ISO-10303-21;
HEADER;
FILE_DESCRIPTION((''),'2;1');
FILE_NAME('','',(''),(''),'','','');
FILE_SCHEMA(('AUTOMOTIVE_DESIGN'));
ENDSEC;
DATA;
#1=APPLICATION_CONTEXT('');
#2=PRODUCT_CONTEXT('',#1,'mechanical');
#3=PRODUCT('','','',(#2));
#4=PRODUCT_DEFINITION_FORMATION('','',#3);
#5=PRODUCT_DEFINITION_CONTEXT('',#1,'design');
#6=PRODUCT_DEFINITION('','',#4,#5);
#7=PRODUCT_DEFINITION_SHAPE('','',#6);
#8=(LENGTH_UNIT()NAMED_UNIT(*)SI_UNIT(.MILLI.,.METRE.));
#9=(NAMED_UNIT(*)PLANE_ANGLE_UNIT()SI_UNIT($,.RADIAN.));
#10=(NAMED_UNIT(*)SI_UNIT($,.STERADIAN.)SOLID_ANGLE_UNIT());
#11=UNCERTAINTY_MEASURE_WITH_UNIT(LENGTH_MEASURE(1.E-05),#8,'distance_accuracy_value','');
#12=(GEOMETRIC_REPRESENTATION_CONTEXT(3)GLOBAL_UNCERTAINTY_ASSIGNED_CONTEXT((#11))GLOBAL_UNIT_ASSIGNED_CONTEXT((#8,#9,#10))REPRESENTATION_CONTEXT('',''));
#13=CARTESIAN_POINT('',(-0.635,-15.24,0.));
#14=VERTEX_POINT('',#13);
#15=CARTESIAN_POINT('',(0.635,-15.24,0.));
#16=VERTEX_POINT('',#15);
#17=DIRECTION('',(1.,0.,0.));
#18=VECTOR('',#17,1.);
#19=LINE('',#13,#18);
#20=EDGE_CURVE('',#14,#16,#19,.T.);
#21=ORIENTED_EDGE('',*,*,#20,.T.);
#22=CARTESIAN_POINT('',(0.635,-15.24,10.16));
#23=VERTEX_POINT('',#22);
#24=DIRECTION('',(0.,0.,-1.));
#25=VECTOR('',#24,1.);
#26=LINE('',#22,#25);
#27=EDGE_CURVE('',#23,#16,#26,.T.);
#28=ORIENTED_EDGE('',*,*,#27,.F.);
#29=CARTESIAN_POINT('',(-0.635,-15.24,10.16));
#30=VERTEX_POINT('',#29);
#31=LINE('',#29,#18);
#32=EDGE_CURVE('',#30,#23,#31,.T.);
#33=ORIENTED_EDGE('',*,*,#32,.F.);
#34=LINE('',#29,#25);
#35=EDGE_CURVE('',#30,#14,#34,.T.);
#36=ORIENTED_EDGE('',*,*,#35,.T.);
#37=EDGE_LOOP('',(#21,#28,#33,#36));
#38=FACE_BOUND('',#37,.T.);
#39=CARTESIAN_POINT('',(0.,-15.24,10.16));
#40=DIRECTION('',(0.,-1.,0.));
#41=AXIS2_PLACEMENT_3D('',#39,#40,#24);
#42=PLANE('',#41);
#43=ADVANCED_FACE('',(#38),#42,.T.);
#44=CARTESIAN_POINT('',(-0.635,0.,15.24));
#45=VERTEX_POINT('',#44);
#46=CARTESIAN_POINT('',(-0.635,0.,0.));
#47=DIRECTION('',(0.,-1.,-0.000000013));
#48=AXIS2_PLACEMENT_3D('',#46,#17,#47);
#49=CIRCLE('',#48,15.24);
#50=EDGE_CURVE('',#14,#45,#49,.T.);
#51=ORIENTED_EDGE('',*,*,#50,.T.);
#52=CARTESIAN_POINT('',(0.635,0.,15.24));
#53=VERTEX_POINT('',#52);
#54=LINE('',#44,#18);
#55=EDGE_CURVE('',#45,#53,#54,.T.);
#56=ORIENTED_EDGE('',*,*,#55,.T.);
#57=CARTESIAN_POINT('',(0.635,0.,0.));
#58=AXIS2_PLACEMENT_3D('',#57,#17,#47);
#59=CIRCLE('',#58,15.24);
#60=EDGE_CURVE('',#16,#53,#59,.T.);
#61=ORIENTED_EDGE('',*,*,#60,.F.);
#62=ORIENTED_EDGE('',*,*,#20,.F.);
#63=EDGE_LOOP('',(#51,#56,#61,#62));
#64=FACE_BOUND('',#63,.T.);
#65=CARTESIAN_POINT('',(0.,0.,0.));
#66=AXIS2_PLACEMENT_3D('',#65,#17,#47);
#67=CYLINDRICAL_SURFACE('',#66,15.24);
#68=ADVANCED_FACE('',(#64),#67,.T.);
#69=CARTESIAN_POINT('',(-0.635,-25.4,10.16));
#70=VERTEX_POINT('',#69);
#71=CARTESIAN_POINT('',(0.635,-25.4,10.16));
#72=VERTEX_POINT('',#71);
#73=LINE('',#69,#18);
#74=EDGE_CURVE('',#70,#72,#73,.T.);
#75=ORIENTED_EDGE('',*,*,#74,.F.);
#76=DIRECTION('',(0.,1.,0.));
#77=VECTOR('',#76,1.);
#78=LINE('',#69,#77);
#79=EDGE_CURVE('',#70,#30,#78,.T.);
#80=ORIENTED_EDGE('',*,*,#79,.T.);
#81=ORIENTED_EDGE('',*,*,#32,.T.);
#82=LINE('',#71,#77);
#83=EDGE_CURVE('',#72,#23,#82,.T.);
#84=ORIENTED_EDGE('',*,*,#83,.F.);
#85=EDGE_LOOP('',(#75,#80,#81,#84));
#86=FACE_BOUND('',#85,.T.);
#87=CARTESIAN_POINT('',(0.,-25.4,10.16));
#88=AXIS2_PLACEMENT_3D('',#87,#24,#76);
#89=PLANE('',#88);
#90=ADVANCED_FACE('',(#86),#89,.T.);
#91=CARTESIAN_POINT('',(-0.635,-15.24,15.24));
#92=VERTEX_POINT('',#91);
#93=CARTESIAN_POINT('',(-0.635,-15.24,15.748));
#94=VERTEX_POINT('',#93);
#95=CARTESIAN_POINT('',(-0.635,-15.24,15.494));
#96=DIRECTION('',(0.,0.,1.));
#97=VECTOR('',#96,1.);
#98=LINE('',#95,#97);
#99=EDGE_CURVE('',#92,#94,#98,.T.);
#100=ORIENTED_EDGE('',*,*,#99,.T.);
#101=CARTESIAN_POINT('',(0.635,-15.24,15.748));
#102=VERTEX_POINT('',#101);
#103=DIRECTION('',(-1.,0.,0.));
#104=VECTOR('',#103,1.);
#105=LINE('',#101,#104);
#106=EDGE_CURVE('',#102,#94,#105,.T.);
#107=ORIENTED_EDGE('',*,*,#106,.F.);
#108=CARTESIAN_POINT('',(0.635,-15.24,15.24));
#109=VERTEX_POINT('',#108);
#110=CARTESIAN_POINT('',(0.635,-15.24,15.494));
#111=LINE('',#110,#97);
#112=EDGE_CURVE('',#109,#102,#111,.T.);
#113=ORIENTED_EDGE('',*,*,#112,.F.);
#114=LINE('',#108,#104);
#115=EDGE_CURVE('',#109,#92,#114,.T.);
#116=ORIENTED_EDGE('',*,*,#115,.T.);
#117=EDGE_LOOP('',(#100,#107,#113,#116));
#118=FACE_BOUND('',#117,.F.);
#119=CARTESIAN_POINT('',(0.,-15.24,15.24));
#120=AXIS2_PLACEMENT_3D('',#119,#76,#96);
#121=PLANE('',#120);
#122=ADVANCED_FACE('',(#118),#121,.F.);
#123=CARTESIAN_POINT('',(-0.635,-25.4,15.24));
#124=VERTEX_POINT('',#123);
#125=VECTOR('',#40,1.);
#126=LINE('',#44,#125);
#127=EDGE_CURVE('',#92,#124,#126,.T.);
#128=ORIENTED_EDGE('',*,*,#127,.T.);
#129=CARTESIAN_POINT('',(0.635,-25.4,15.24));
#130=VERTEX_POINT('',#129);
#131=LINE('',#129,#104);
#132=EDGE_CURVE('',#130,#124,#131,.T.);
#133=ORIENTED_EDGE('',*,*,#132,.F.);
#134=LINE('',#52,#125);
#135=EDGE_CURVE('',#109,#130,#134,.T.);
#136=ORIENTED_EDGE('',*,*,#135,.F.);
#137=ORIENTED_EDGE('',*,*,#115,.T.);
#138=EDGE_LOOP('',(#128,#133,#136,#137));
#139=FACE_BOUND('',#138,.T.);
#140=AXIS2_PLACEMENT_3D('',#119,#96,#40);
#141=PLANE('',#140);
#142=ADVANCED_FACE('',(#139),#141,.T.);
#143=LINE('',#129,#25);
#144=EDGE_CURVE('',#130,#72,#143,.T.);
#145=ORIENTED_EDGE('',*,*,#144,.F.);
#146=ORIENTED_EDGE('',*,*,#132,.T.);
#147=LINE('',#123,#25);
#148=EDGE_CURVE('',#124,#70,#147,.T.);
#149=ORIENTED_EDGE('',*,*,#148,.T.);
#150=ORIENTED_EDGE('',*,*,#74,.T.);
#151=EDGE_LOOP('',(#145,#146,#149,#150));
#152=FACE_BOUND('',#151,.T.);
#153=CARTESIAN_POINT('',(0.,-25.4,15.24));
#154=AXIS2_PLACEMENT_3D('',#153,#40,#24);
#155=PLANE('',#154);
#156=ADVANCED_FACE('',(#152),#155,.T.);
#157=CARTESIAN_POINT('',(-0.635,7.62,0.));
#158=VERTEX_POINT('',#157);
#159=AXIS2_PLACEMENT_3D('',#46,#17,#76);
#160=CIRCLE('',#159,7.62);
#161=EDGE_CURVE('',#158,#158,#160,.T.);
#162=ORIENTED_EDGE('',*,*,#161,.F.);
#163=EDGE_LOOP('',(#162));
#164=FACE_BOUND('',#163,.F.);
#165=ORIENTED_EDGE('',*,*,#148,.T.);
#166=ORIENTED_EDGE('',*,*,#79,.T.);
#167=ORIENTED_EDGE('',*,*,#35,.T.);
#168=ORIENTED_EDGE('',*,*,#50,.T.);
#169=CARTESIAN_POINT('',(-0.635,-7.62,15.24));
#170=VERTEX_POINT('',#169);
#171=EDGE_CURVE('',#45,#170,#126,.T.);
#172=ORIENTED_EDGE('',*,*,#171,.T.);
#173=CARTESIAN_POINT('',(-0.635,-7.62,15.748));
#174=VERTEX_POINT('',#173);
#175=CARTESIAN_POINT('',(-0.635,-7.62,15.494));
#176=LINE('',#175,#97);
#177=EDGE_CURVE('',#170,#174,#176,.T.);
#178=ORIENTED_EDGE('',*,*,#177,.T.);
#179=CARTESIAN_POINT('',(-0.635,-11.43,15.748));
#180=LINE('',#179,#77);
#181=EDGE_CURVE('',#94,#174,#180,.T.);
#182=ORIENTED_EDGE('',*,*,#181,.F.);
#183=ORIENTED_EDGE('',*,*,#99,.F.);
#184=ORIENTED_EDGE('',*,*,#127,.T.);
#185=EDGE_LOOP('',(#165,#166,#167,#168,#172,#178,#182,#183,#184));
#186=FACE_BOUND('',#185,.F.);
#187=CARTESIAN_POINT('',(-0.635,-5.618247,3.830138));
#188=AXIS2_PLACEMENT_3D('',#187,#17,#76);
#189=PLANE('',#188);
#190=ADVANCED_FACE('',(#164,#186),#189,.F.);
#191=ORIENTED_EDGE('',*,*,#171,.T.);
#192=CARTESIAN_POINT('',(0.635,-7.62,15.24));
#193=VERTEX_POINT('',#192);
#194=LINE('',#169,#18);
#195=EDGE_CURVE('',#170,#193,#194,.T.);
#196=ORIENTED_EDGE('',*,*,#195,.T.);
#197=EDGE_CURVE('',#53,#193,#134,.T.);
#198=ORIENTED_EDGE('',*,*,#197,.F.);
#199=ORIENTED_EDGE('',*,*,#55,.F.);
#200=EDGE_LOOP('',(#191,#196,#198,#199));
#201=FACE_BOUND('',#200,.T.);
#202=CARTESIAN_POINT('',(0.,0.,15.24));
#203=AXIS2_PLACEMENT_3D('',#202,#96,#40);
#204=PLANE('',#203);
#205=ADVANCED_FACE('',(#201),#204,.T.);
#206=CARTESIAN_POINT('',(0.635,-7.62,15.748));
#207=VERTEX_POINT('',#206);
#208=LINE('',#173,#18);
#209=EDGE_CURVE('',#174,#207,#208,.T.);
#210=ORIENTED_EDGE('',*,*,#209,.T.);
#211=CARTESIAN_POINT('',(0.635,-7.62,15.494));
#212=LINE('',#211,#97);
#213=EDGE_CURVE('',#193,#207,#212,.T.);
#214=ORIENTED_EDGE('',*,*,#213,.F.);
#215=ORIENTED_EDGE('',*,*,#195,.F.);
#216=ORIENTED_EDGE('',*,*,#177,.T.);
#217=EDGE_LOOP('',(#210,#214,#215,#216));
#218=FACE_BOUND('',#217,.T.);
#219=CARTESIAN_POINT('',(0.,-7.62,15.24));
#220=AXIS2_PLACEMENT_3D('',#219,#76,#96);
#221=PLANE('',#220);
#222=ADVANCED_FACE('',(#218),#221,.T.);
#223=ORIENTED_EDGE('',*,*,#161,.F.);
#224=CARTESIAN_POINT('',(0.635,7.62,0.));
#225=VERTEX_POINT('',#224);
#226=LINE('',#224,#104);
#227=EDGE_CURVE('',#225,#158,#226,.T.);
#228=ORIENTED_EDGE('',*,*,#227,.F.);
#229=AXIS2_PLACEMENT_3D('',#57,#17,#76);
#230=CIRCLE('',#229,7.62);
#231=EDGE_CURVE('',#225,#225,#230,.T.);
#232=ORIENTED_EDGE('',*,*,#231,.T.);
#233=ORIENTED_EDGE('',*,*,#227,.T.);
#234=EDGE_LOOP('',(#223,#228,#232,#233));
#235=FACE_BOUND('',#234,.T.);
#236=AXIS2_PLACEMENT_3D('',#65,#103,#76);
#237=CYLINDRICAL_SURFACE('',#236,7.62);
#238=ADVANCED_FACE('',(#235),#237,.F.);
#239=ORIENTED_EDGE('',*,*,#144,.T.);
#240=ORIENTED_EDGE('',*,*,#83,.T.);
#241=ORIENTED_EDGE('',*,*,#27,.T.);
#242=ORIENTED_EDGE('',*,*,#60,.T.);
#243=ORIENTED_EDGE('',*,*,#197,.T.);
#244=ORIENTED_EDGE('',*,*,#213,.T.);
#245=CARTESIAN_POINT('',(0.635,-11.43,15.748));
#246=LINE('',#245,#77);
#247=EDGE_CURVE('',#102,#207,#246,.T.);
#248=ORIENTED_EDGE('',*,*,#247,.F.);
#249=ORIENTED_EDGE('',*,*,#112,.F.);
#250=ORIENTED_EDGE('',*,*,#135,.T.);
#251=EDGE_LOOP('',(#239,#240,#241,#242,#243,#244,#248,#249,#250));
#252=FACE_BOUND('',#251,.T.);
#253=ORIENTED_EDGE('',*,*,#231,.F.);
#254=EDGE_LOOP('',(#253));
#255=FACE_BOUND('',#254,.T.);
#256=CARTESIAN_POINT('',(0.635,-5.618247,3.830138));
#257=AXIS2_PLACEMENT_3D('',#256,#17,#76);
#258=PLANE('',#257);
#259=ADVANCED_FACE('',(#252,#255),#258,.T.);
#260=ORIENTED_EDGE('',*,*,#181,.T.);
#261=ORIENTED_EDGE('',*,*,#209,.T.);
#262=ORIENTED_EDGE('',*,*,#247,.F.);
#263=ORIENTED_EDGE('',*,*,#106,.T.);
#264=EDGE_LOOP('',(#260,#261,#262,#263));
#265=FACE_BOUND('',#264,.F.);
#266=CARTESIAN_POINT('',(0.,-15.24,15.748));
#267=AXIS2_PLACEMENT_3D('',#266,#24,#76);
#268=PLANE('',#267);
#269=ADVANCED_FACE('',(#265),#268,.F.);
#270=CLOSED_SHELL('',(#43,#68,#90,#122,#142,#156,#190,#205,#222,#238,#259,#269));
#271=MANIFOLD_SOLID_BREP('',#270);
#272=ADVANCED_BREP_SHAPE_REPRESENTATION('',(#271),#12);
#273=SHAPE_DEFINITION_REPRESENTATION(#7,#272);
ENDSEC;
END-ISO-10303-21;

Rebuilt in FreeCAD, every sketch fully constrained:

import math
import FreeCAD as App
import Part
import Sketcher
from FreeCAD import Vector
Q = App.Units.Quantity

doc = App.newDocument("Part")
body = doc.addObject("PartDesign::Body", "Body")

sketch1 = body.newObject("Sketcher::SketchObject", "Sketch")
sketch1.AttachmentSupport = (doc.getObject("YZ_Plane"), [""])
sketch1.MapMode = "FlatFace"
sketch1.addGeometry([
    Part.LineSegment(Vector(-25.4, 15.24, 0), Vector(-25.4, 10.16, 0)),
    Part.LineSegment(Vector(-25.4, 10.16, 0), Vector(-15.24, 10.16, 0)),
    Part.LineSegment(Vector(-15.24, 10.16, 0), Vector(-15.24, 0, 0)),
    Part.ArcOfCircle(Part.Circle(Vector(0, 0, 0), Vector(0, 0, 1), 15.24), math.radians(-179.999999), math.radians(89.999999)),
    Part.LineSegment(Vector(0, 15.24, 0), Vector(-7.62, 15.24, 0)),
    Part.LineSegment(Vector(-7.62, 15.24, 0), Vector(-7.62, 15.748, 0)),
    Part.LineSegment(Vector(-7.62, 15.748, 0), Vector(-15.24, 15.748, 0)),
    Part.LineSegment(Vector(-15.24, 15.748, 0), Vector(-15.24, 15.24, 0)),
    Part.LineSegment(Vector(-15.24, 15.24, 0), Vector(-25.4, 15.24, 0)),
    Part.Circle(Vector(0, 0, 0), Vector(0, 0, 1), 7.62),
], False)
sketch1.addConstraint([
    Sketcher.Constraint("Coincident", 0, 2, 1, 1),
    Sketcher.Constraint("Coincident", 1, 2, 2, 1),
    Sketcher.Constraint("Tangent", 2, 2, 3, 1),
    Sketcher.Constraint("Tangent", 3, 2, 4, 1),
    Sketcher.Constraint("Coincident", 4, 2, 5, 1),
    Sketcher.Constraint("Coincident", 5, 2, 6, 1),
    Sketcher.Constraint("Coincident", 6, 2, 7, 1),
    Sketcher.Constraint("Coincident", 7, 2, 8, 1),
    Sketcher.Constraint("Coincident", 8, 2, 0, 1),
    Sketcher.Constraint("Vertical", 0),
    Sketcher.Constraint("Horizontal", 1),
    Sketcher.Constraint("Vertical", 2),
    Sketcher.Constraint("Horizontal", 4),
    Sketcher.Constraint("Vertical", 5),
    Sketcher.Constraint("Horizontal", 6),
    Sketcher.Constraint("Vertical", 7),
    Sketcher.Constraint("Horizontal", 8),
    Sketcher.Constraint("Coincident", 3, 3, -1, 1),
    Sketcher.Constraint("Coincident", 9, 3, -1, 1),
    Sketcher.Constraint("Horizontal", 4, 2, 7, 2),
    Sketcher.Constraint("Vertical", 2, 2, 6, 2),
    Sketcher.Constraint("Equal", 4, 6),
    Sketcher.Constraint("Equal", 8, 2),
    Sketcher.Constraint("Diameter", 9, Q("0.6 in")),
    Sketcher.Constraint("Radius", 3, Q("0.6 in")),
    Sketcher.Constraint("DistanceX", 1, 1, 1, 2, Q("0.4 in")),
    Sketcher.Constraint("DistanceY", 5, 1, 5, 2, Q("0.02 in")),
])
pad1 = body.newObject("PartDesign::Pad", "Pad")
pad1.Profile = sketch1
pad1.Length = Q("0.05 in")
pad1.Midplane = True

doc.recompute()
